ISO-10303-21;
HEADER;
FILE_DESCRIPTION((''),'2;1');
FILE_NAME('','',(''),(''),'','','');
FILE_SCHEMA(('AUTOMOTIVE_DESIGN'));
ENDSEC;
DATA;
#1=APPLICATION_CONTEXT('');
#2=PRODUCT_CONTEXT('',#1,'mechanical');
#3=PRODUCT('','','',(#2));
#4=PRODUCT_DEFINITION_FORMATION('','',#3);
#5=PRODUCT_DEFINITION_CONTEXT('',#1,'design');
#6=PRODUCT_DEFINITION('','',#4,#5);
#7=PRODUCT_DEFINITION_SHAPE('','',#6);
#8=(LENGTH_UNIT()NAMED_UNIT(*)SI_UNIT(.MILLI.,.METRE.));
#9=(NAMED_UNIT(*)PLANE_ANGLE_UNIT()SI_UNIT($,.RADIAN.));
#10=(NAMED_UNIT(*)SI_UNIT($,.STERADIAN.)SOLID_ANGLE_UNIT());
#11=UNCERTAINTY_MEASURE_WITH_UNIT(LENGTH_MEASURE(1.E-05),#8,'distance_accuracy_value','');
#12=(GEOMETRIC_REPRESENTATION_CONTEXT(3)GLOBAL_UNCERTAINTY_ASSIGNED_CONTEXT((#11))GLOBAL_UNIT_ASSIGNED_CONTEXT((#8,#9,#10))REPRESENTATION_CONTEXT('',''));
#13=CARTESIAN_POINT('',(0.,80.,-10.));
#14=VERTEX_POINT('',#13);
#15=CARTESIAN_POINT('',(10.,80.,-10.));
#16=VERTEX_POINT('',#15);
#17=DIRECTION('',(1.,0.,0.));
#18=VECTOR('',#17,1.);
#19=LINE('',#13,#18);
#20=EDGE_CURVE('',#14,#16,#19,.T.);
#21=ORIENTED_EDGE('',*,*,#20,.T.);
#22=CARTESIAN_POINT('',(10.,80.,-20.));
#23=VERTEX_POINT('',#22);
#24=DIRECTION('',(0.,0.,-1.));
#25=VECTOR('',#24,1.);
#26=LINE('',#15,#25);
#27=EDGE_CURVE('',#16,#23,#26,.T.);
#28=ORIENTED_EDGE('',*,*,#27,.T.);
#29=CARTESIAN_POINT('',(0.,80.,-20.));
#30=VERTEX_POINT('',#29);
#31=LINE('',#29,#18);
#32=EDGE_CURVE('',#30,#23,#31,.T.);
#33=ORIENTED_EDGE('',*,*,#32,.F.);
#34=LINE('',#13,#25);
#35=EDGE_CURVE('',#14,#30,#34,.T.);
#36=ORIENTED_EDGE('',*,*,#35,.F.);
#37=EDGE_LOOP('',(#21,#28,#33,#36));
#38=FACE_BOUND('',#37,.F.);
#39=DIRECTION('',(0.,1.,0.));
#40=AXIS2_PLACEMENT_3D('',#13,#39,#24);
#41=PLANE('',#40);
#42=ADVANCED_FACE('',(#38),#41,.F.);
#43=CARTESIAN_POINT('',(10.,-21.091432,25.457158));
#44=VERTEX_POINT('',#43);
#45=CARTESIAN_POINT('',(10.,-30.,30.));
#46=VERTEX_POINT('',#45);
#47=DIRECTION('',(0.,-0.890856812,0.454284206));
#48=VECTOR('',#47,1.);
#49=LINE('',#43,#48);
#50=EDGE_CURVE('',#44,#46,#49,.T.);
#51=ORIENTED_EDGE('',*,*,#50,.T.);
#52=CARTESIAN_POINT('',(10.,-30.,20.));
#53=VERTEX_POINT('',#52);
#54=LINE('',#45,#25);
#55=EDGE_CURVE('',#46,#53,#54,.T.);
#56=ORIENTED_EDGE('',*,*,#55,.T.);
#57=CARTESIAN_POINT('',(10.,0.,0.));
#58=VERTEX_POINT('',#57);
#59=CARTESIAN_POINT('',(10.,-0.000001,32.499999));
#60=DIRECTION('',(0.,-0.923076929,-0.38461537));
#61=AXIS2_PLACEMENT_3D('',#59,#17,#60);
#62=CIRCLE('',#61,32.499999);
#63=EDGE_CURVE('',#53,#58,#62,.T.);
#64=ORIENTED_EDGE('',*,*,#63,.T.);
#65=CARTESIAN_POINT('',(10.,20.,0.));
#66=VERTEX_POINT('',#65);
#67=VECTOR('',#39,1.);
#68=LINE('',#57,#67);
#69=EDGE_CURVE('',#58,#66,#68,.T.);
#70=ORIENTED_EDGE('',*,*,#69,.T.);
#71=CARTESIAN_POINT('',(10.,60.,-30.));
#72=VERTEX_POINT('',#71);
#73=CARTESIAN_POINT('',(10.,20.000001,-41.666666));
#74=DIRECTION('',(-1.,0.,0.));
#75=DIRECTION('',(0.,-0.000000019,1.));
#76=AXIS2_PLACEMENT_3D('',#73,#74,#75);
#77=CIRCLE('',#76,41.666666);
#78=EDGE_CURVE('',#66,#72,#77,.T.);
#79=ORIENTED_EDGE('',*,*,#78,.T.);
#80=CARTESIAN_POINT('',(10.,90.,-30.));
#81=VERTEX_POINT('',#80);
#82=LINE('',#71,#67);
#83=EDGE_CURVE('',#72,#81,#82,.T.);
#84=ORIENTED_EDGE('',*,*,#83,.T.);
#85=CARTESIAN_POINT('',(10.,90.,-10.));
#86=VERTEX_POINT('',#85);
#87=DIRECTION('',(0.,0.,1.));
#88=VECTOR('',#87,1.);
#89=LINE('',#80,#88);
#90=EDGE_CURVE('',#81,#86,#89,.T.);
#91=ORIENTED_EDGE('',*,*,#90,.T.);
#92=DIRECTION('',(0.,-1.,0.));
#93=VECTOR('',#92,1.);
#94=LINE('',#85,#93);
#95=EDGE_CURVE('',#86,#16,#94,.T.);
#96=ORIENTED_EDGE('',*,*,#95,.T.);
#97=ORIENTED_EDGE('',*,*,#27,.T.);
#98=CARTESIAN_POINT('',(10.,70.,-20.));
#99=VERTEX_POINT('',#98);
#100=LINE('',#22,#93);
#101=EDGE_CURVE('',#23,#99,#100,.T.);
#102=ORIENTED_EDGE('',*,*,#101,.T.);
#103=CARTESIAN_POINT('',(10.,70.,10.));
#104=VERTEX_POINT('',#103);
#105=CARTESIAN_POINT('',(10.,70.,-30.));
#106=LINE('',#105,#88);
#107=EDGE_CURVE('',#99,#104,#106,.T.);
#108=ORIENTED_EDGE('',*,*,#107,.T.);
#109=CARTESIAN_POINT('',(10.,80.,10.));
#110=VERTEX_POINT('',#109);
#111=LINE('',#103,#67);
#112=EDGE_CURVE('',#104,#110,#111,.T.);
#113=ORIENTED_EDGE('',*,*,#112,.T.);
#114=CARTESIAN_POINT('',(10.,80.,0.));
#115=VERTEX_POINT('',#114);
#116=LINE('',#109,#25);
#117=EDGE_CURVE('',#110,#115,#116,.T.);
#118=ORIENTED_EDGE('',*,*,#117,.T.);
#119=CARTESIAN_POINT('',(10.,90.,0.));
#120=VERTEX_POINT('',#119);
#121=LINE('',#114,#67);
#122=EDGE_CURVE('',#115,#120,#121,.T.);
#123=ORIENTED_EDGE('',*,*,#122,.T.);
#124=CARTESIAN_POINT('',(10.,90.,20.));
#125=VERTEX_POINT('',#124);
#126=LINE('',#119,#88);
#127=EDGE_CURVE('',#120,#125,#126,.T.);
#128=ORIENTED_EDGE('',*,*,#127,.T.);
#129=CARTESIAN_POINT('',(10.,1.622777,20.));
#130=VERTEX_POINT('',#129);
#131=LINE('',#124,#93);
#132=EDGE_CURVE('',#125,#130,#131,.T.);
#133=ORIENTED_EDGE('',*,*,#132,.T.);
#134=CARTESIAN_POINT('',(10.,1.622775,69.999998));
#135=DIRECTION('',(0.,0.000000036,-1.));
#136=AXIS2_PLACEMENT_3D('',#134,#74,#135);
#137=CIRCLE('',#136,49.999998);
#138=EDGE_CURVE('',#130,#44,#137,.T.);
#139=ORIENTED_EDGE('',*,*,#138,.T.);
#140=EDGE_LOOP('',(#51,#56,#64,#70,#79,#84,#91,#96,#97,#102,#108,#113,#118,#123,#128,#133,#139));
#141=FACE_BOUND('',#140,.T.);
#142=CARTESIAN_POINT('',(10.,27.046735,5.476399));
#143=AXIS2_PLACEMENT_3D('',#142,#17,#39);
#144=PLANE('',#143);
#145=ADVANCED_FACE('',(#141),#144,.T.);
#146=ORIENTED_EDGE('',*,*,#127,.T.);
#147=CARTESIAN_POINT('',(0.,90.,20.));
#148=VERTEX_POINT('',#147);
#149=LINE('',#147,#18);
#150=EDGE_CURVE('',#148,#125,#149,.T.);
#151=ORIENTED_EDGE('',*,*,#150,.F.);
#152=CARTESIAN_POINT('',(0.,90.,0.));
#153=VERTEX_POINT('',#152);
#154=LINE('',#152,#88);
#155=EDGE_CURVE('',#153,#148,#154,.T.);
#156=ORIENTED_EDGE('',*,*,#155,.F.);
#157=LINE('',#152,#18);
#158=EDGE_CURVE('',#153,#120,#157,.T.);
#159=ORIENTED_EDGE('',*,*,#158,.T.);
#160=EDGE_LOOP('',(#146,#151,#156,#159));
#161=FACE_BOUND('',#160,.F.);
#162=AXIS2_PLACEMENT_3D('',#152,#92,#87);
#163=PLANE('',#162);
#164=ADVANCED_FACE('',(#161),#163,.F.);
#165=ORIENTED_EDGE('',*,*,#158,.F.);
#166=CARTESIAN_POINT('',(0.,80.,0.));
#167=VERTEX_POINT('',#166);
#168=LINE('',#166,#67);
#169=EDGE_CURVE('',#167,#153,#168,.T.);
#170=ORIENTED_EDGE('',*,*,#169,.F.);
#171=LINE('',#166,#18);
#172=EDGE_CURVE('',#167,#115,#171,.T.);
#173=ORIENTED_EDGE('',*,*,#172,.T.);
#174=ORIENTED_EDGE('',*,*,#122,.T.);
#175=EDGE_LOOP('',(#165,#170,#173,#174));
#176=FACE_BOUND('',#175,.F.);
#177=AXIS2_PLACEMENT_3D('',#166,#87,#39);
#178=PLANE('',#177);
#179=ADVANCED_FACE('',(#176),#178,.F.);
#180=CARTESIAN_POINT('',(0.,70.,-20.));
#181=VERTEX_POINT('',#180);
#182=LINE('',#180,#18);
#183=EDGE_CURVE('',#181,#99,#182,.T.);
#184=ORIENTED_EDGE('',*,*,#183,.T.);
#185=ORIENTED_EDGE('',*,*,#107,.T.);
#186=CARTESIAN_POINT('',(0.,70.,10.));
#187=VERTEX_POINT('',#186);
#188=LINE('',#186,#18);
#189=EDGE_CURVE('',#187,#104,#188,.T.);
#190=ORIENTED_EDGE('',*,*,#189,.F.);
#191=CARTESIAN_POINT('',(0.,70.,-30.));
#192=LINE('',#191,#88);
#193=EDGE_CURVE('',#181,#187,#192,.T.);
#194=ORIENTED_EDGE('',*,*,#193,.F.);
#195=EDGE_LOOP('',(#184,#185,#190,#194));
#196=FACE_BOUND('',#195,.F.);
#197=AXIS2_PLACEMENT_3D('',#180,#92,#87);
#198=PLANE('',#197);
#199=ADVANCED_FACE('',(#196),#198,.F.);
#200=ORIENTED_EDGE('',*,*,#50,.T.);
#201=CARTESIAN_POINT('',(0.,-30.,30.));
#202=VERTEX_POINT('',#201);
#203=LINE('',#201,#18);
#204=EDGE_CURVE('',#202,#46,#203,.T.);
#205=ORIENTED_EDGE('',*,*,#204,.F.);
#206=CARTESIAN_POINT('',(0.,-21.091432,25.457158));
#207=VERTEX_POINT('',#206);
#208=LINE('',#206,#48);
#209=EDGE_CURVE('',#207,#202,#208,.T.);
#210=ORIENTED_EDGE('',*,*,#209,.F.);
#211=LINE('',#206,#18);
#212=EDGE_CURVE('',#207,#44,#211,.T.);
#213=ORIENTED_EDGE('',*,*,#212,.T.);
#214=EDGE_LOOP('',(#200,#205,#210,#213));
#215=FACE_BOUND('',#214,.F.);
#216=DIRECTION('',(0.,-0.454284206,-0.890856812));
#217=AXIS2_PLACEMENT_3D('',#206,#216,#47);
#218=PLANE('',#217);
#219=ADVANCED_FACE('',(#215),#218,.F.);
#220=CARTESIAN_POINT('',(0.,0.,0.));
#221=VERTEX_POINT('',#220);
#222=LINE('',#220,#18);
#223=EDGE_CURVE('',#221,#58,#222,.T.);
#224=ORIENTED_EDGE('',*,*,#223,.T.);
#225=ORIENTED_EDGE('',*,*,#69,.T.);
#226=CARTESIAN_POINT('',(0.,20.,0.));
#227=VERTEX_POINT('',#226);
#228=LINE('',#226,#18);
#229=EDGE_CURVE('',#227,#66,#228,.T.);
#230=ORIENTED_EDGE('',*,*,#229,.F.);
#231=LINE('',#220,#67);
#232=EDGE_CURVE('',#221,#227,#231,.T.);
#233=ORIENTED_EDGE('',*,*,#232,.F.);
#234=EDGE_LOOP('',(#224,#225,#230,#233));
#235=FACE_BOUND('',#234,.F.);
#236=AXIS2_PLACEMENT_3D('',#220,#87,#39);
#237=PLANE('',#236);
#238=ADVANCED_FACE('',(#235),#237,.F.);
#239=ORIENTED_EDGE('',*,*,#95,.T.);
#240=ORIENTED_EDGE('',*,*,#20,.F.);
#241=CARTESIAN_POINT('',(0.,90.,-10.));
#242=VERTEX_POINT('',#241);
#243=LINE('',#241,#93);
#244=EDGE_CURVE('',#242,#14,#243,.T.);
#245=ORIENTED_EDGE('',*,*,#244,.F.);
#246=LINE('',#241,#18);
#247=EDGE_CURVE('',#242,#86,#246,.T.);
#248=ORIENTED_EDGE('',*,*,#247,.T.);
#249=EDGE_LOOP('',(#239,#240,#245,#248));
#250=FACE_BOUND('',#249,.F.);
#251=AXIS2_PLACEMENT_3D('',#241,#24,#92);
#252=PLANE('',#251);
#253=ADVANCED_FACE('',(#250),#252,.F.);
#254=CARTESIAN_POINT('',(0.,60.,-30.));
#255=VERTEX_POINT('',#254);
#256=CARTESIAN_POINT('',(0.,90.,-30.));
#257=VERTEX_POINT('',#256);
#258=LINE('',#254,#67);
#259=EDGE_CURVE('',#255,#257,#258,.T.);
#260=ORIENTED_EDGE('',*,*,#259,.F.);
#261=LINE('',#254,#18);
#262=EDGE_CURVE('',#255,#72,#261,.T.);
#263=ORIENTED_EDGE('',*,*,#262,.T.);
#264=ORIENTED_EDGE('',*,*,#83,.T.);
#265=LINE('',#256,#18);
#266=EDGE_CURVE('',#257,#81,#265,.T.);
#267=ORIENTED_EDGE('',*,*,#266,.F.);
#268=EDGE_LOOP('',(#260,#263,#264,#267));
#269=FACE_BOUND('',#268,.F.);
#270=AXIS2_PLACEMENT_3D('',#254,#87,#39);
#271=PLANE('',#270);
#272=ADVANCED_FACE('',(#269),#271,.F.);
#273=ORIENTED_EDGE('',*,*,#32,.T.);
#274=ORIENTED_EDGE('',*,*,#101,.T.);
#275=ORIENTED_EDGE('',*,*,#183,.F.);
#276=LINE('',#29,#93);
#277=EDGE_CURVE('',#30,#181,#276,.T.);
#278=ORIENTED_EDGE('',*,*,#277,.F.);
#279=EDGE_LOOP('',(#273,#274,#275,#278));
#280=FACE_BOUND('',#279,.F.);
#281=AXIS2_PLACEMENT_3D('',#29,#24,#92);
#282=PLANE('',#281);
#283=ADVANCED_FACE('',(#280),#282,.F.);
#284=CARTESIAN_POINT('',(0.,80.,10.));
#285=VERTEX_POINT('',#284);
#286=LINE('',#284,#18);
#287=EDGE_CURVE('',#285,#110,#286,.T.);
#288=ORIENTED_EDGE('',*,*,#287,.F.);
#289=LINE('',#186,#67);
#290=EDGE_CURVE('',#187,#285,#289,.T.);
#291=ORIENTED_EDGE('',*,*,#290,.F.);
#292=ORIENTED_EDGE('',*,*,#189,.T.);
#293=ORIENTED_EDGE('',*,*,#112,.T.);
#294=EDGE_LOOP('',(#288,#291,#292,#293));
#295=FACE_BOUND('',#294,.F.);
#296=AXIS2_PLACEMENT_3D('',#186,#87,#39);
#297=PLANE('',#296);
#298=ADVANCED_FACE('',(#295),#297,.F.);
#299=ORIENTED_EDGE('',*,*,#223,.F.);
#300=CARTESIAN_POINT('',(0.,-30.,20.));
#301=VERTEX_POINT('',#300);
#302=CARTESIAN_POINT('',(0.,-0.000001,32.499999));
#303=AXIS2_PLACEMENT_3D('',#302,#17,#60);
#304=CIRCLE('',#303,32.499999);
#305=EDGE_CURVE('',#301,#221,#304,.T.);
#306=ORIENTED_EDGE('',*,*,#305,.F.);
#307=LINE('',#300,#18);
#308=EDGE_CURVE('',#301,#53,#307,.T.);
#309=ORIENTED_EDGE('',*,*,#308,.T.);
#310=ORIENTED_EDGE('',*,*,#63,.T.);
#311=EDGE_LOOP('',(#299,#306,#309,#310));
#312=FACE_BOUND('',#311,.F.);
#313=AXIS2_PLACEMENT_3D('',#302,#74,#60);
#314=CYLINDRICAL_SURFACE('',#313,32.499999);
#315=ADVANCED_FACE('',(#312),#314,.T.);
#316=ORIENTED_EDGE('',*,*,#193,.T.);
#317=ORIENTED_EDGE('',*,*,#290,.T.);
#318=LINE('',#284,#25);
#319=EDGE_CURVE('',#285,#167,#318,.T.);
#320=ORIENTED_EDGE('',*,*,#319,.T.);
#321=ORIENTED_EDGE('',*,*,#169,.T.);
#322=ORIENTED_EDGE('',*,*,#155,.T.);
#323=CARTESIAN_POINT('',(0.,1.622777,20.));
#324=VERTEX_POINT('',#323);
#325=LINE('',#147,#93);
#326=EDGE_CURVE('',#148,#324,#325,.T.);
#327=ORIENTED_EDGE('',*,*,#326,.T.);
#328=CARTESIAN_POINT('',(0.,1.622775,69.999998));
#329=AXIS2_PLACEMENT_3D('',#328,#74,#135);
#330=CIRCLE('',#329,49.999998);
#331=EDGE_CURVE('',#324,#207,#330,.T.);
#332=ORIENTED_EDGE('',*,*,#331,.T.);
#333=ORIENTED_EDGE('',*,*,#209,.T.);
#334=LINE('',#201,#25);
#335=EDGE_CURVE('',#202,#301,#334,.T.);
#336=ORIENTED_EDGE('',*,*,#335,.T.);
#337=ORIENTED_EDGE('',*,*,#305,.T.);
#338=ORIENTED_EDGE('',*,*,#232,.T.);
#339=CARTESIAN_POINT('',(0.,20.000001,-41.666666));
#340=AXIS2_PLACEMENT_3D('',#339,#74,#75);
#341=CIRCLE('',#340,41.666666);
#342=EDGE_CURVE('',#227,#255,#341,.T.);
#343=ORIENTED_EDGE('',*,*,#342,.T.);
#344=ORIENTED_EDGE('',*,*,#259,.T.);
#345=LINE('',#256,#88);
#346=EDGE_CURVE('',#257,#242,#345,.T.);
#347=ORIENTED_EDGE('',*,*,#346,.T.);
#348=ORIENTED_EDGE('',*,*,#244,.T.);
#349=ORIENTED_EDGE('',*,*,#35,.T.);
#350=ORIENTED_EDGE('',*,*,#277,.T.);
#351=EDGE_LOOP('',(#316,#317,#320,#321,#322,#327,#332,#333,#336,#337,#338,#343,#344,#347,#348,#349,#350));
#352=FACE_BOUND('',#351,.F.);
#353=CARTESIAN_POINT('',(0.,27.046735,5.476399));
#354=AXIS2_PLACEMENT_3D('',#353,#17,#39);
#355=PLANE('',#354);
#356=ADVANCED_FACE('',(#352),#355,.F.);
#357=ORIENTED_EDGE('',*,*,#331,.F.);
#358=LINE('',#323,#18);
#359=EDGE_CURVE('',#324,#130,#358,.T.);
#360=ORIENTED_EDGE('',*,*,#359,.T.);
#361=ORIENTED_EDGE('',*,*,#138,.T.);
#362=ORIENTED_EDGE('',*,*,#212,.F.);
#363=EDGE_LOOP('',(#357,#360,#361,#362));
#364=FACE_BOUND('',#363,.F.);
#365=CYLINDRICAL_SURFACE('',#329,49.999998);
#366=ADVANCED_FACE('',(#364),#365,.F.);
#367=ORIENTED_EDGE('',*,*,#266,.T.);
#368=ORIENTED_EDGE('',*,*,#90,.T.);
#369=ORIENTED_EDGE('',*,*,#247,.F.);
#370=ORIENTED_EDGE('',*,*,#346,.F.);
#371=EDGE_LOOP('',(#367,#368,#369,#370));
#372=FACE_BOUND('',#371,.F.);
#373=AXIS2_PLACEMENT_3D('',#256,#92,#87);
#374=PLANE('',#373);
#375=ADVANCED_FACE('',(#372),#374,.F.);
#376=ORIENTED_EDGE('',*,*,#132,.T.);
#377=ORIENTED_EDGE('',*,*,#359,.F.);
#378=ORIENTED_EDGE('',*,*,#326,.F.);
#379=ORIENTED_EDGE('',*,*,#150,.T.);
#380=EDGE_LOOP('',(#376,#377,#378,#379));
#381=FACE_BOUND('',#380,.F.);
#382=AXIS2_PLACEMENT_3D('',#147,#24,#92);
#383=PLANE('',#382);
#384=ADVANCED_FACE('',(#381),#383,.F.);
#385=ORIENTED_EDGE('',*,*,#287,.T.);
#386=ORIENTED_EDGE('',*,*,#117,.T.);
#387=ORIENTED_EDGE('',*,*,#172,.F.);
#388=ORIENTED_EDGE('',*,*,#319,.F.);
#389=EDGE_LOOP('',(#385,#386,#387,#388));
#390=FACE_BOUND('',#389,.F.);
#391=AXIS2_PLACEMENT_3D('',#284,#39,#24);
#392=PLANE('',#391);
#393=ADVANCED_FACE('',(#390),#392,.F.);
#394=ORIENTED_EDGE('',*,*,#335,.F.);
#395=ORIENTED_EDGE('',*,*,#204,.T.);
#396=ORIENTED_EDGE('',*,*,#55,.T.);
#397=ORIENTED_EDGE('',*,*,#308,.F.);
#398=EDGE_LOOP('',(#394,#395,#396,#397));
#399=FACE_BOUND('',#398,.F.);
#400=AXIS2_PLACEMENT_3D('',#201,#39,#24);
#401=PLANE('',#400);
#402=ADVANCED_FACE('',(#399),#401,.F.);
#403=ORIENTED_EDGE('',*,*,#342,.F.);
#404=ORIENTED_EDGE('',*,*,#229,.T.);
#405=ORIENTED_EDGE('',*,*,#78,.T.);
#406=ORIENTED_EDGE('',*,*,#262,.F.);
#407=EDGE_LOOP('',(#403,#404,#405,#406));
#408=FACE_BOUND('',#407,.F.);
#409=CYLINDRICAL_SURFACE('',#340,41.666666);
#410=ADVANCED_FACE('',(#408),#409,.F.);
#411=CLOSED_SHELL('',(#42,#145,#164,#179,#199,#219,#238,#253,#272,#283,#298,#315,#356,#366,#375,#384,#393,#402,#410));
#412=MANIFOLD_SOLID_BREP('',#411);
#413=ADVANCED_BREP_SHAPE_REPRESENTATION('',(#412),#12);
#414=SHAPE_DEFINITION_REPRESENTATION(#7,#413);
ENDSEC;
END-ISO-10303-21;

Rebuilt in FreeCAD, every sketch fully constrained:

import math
import FreeCAD as App
import Part
import Sketcher
Q = App.Units.Quantity

doc = App.newDocument("Part")
params = doc.addObject("Spreadsheet::Sheet", "Params")
for row, (alias, value) in enumerate([
    ("sketch1_radius", "49.999998 mm"),
    ("sketch1_radius2", "32.499999 mm"),
    ("sketch1_width", "20 mm"),
    ("sketch1_width2", "30 mm"),
    ("sketch1_length", "10 mm"),
    ("pad1_length", "10 mm"),
], start=1):
    params.set(f"A{row}", alias)
    params.set(f"B{row}", "=" + value)
    params.setAlias(f"B{row}", alias)

body = doc.addObject("PartDesign::Body", "Body")

sketch1 = body.newObject("Sketcher::SketchObject", "Sketch")
sketch1.AttachmentSupport = (doc.getObject("YZ_Plane"), [""])
sketch1.MapMode = "FlatFace"
sketch1.addGeometry(Part.LineSegment(App.Vector(-21, 25, 0), App.Vector(-30, 30, 0)), False)
sketch1.addGeometry(Part.LineSegment(App.Vector(-30, 30, 0), App.Vector(-30, 20, 0)), False)
sketch1.addGeometry(Part.ArcOfCircle(Part.Circle(App.Vector(0, 32, 0), App.Vector(0, 0, 1), 32), math.radians(-157), math.radians(-90)), False)
sketch1.addGeometry(Part.LineSegment(App.Vector(0, 0, 0), App.Vector(20, 0, 0)), False)
sketch1.addGeometry(Part.ArcOfCircle(Part.Circle(App.Vector(20, -42, 0), App.Vector(0, 0, 1), 42), math.radians(16), math.radians(90)), False)
sketch1.addGeometry(Part.LineSegment(App.Vector(60, -30, 0), App.Vector(90, -30, 0)), False)
sketch1.addGeometry(Part.LineSegment(App.Vector(90, -30, 0), App.Vector(90, -10, 0)), False)
sketch1.addGeometry(Part.LineSegment(App.Vector(90, -10, 0), App.Vector(80, -10, 0)), False)
sketch1.addGeometry(Part.LineSegment(App.Vector(80, -10, 0), App.Vector(80, -20, 0)), False)
sketch1.addGeometry(Part.LineSegment(App.Vector(80, -20, 0), App.Vector(70, -20, 0)), False)
sketch1.addGeometry(Part.LineSegment(App.Vector(70, -20, 0), App.Vector(70, 10, 0)), False)
sketch1.addGeometry(Part.LineSegment(App.Vector(70, 10, 0), App.Vector(80, 10, 0)), False)
sketch1.addGeometry(Part.LineSegment(App.Vector(80, 10, 0), App.Vector(80, 0, 0)), False)
sketch1.addGeometry(Part.LineSegment(App.Vector(80, 0, 0), App.Vector(90, 0, 0)), False)
sketch1.addGeometry(Part.LineSegment(App.Vector(90, 0, 0), App.Vector(90, 20, 0)), False)
sketch1.addGeometry(Part.LineSegment(App.Vector(90, 20, 0), App.Vector(2, 20, 0)), False)
sketch1.addGeometry(Part.ArcOfCircle(Part.Circle(App.Vector(2, 70, 0), App.Vector(0, 0, 1), 50), math.radians(-117), math.radians(-90)), False)
sketch1.addConstraint(Sketcher.Constraint("Coincident", 0, 2, 1, 1))
sketch1.addConstraint(Sketcher.Constraint("Coincident", 1, 2, 2, 1))
sketch1.addConstraint(Sketcher.Constraint("Tangent", 2, 2, 3, 1))
sketch1.addConstraint(Sketcher.Constraint("Tangent", 3, 2, 4, 2))
sketch1.addConstraint(Sketcher.Constraint("Coincident", 4, 1, 5, 1))
sketch1.addConstraint(Sketcher.Constraint("Coincident", 5, 2, 6, 1))
sketch1.addConstraint(Sketcher.Constraint("Coincident", 6, 2, 7, 1))
sketch1.addConstraint(Sketcher.Constraint("Coincident", 7, 2, 8, 1))
sketch1.addConstraint(Sketcher.Constraint("Coincident", 8, 2, 9, 1))
sketch1.addConstraint(Sketcher.Constraint("Coincident", 9, 2, 10, 1))
sketch1.addConstraint(Sketcher.Constraint("Coincident", 10, 2, 11, 1))
sketch1.addConstraint(Sketcher.Constraint("Coincident", 11, 2, 12, 1))
sketch1.addConstraint(Sketcher.Constraint("Coincident", 12, 2, 13, 1))
sketch1.addConstraint(Sketcher.Constraint("Coincident", 13, 2, 14, 1))
sketch1.addConstraint(Sketcher.Constraint("Coincident", 14, 2, 15, 1))
sketch1.addConstraint(Sketcher.Constraint("Tangent", 15, 2, 16, 2))
sketch1.addConstraint(Sketcher.Constraint("Tangent", 16, 1, 0, 1))
sketch1.addConstraint(Sketcher.Constraint("Vertical", 1))
sketch1.addConstraint(Sketcher.Constraint("Horizontal", 3))
sketch1.addConstraint(Sketcher.Constraint("Horizontal", 5))
sketch1.addConstraint(Sketcher.Constraint("Vertical", 6))
sketch1.addConstraint(Sketcher.Constraint("Horizontal", 7))
sketch1.addConstraint(Sketcher.Constraint("Vertical", 8))
sketch1.addConstraint(Sketcher.Constraint("Horizontal", 9))
sketch1.addConstraint(Sketcher.Constraint("Vertical", 10))
sketch1.addConstraint(Sketcher.Constraint("Horizontal", 11))
sketch1.addConstraint(Sketcher.Constraint("Vertical", 12))
sketch1.addConstraint(Sketcher.Constraint("Horizontal", 13))
sketch1.addConstraint(Sketcher.Constraint("Vertical", 14))
sketch1.addConstraint(Sketcher.Constraint("Horizontal", 15))
sketch1.addConstraint(Sketcher.Constraint("Coincident", 2, 2, -1, 1))
sketch1.addConstraint(Sketcher.Constraint("Symmetric", 7, 2, 11, 2, -1))
sketch1.addConstraint(Sketcher.Constraint("PointOnObject", 12, 2, -1))
sketch1.addConstraint(Sketcher.Constraint("Horizontal", 1, 2, 14, 2))
sketch1.addConstraint(Sketcher.Constraint("Vertical", 6, 2, 13, 2))
sketch1.addConstraint(Sketcher.Constraint("Equal", 7, 9))
sketch1.addConstraint(Sketcher.Constraint("Equal", 13, 1))
sketch1.addConstraint(Sketcher.Constraint("Equal", 3, 6))
sketch1.addConstraint(Sketcher.Constraint("Equal", 1, 8))
sketch1.addConstraint(Sketcher.Constraint("Equal", 5, 10))
sketch1.addConstraint(Sketcher.Constraint("Equal", 8, 12))
sketch1.addConstraint(Sketcher.Constraint("Equal", 6, 14))
sketch1.addConstraint(Sketcher.Constraint("Radius", 16, Q("49.999998 mm")))
sketch1.addConstraint(Sketcher.Constraint("Radius", 2, Q("32.499999 mm")))
sketch1.addConstraint(Sketcher.Constraint("DistanceX", 3, 1, 3, 2, Q("20 mm")))
sketch1.addConstraint(Sketcher.Constraint("DistanceX", 5, 1, 5, 2, Q("30 mm")))
sketch1.addConstraint(Sketcher.Constraint("Distance", 0, Q("10 mm")))
sketch1.addConstraint(Sketcher.Constraint("DistanceX", -1, 1, 4, 1, Q("60 mm")))
sketch1.setExpression("Constraints[42]", "Params.sketch1_radius")
sketch1.setExpression("Constraints[43]", "Params.sketch1_radius2")
sketch1.setExpression("Constraints[44]", "Params.sketch1_width")
sketch1.setExpression("Constraints[45]", "Params.sketch1_width2")
sketch1.setExpression("Constraints[46]", "Params.sketch1_length")
pad1 = body.newObject("PartDesign::Pad", "Pad")
pad1.Profile = sketch1
pad1.setExpression("Length", "Params.pad1_length")

doc.recompute()
